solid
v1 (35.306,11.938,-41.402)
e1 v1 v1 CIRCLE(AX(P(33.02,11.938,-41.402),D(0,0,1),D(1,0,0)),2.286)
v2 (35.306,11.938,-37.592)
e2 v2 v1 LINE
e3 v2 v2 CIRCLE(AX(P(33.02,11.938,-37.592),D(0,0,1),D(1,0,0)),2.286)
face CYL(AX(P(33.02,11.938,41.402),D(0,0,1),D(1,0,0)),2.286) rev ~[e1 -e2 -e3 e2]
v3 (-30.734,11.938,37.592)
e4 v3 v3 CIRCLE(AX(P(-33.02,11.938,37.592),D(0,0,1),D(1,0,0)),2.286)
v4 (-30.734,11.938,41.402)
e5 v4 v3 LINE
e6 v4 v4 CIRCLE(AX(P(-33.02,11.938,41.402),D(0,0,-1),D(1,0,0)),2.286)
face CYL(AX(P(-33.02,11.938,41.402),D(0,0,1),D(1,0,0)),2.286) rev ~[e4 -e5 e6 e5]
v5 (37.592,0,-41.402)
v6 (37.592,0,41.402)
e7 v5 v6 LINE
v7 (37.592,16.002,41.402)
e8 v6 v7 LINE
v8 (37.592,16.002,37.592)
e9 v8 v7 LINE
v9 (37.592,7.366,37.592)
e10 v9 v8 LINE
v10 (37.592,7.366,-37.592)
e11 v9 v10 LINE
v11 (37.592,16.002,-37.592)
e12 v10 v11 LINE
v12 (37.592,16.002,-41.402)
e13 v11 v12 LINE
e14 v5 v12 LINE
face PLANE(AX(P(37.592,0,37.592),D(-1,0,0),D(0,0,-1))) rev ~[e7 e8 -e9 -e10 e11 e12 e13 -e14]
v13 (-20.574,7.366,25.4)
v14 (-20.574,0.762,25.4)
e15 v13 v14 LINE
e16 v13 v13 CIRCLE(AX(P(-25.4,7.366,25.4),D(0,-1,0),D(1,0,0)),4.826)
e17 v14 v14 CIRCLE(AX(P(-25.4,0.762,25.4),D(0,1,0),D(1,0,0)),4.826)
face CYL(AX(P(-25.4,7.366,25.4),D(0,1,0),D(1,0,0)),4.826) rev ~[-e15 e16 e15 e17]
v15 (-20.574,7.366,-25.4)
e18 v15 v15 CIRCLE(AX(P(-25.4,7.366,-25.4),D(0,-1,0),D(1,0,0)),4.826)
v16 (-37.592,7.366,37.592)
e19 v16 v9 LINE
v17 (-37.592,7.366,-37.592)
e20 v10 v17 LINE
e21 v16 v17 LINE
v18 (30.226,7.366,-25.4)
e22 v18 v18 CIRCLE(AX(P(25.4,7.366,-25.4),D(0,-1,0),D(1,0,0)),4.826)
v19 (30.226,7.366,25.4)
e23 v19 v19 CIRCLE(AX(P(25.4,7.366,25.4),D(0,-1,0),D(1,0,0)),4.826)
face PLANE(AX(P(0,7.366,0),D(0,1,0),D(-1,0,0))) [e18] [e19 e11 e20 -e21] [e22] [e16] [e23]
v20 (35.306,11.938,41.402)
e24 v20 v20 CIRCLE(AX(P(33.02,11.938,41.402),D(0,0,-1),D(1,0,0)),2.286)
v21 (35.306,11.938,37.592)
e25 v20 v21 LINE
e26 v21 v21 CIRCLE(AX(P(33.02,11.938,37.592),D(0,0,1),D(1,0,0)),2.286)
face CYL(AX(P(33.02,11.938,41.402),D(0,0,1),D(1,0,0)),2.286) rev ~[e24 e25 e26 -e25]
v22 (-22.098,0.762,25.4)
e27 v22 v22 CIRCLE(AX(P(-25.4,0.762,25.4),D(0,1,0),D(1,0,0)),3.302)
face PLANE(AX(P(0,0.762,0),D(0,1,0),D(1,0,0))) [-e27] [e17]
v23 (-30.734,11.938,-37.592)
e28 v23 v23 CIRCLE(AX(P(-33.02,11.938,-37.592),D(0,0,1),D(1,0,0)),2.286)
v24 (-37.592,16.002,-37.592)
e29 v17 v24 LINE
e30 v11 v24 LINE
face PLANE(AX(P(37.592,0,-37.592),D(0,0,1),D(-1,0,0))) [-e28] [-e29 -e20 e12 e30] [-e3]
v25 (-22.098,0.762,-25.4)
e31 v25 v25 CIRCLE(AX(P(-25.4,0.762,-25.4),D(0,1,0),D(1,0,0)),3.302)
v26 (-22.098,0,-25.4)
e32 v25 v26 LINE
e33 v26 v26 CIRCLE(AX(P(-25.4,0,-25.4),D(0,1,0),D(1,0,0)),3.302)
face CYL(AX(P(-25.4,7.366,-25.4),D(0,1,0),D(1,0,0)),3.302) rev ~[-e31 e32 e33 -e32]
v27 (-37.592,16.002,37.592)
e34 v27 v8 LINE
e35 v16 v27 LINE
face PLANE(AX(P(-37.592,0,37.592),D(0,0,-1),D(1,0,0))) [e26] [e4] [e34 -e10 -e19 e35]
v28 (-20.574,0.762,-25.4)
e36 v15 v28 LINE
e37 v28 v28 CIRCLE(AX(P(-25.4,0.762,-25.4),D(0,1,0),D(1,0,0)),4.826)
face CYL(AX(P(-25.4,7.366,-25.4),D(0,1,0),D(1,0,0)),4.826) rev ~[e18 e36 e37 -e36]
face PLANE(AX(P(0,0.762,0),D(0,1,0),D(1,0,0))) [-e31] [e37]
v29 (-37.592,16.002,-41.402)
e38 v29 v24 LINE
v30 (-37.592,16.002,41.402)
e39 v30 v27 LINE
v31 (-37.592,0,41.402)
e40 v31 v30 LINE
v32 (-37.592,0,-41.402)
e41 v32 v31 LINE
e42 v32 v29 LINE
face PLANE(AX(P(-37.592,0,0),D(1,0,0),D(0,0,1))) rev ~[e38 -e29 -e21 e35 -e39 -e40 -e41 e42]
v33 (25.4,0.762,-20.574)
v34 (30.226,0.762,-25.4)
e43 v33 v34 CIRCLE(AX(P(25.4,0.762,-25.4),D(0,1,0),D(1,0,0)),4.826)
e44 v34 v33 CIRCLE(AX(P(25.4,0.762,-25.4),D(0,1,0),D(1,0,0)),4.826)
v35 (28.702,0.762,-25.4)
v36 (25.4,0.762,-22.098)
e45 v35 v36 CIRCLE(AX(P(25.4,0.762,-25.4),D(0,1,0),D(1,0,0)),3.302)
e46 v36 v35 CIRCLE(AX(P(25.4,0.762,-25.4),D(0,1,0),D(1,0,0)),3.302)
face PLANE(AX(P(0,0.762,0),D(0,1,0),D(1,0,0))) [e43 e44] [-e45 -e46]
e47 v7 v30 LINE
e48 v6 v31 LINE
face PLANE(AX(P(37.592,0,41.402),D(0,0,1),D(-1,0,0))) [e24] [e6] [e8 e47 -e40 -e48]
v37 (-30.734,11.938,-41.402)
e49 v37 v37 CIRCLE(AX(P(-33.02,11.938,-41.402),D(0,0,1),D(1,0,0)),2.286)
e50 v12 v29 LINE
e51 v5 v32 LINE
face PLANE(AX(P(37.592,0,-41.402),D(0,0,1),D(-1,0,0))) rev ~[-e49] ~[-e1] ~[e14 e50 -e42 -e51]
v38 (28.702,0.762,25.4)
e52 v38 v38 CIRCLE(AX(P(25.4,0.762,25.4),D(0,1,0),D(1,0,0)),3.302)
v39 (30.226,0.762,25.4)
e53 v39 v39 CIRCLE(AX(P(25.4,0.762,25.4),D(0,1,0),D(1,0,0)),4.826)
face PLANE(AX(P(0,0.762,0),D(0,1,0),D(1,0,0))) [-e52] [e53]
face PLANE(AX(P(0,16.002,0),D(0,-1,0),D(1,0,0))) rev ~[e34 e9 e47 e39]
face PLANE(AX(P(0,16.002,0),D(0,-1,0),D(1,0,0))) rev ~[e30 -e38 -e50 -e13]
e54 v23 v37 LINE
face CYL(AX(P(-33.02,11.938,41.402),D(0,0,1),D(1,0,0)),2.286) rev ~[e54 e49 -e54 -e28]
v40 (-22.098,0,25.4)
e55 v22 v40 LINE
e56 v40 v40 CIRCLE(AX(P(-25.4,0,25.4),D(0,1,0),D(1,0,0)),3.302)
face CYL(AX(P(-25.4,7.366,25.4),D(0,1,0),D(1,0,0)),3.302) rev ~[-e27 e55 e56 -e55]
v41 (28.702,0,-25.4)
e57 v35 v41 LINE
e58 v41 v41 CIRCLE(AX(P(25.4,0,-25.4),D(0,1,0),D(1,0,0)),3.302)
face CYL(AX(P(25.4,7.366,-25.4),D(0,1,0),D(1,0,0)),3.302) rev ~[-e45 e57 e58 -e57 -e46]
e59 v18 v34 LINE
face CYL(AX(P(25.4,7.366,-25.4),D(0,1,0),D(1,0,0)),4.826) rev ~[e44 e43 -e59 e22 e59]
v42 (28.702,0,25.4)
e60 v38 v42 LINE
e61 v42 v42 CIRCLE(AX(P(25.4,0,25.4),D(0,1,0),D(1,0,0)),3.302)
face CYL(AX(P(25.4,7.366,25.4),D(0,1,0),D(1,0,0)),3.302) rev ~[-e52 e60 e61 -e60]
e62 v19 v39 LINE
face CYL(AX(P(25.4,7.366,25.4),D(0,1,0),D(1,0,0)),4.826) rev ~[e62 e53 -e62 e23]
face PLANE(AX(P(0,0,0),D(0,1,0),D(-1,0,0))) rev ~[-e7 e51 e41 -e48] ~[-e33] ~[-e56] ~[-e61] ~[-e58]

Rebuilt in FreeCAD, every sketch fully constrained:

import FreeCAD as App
import Part
import Sketcher
Q = App.Units.Quantity


def add_polygon(sketch, points):
    """Adds a closed chain of lines whose ends are joined by coincident constraints."""
    first, n = sketch.GeometryCount, len(points)
    for a, b in zip(points, points[1:] + points[:1]):
        sketch.addGeometry(Part.LineSegment(App.Vector(*a, 0), App.Vector(*b, 0)), False)
    for i in range(n):
        sketch.addConstraint(Sketcher.Constraint("Coincident", first + i, 2, first + (i + 1) % n, 1))

doc = App.newDocument("Part")
body = doc.addObject("PartDesign::Body", "Body")

# Sketch on XZ plane
sketch1 = body.newObject("Sketcher::SketchObject", "Sketch")
sketch1.AttachmentSupport = (doc.getObject("XZ_Plane"), [""])
sketch1.MapMode = "FlatFace"
add_polygon(sketch1, [(-38, 38), (38, 38), (38, -38), (-38, -38)])  # lines 0-3
sketch1.addConstraint([
    Sketcher.Constraint("Horizontal", 0),
    Sketcher.Constraint("Vertical", 1),
    Sketcher.Constraint("Horizontal", 2),
    Sketcher.Constraint("Vertical", 3),
    Sketcher.Constraint("Symmetric", 0, 2, 2, 2, -1, 1),
    Sketcher.Constraint("Equal", 2, 1),
    Sketcher.Constraint("DistanceX", 0, 1, 0, 2, Q("2.96 in")),
])
pad1 = body.newObject("PartDesign::Pad", "Pad")
pad1.Profile = sketch1
pad1.Length = Q("0.29 in")
pad1.Reversed = True

# Sketch on XZ plane
sketch2 = body.newObject("Sketcher::SketchObject", "Sketch001")
sketch2.AttachmentSupport = (doc.getObject("XZ_Plane"), [""])
sketch2.MapMode = "FlatFace"
add_polygon(sketch2, [(-37.6, 41.4), (-37.6, 37.6), (37.6, 37.6), (37.6, 41.4)])  # lines 0-3
add_polygon(sketch2, [(37.6, -41.4), (37.6, -37.6), (-37.6, -37.6), (-37.6, -41.4)])  # lines 4-7
sketch2.addConstraint([
    Sketcher.Constraint("Vertical", 0),
    Sketcher.Constraint("Horizontal", 1),
    Sketcher.Constraint("Vertical", 2),
    Sketcher.Constraint("Horizontal", 3),
    Sketcher.Constraint("Vertical", 4),
    Sketcher.Constraint("Horizontal", 5),
    Sketcher.Constraint("Vertical", 6),
    Sketcher.Constraint("Horizontal", 7),
    Sketcher.Constraint("Symmetric", 0, 2, 4, 2, -1, 1),
    Sketcher.Constraint("Symmetric", 2, 2, 6, 2, -1, 1),
    Sketcher.Constraint("Vertical", 2, 2, 4, 2),
    Sketcher.Constraint("DistanceY", 0, 2, 0, 1, Q("0.15 in")),
    Sketcher.Constraint("DistanceX", 1, 1, 1, 2, Q("2.96 in")),
    Sketcher.Constraint("DistanceY", -1, 1, 0, 2, Q("1.48 in")),
])
pad2 = body.newObject("PartDesign::Pad", "Pad001")
pad2.Profile = sketch2
pad2.Length = Q("0.63 in")
pad2.Reversed = True

# Sketch on XZ plane
sketch3 = body.newObject("Sketcher::SketchObject", "Sketch002")
sketch3.AttachmentSupport = (doc.getObject("XZ_Plane"), [""])
sketch3.MapMode = "FlatFace"
sketch3.AttachmentOffset = App.Placement(App.Vector(0, 0, -0.29 * 25.4), App.Rotation())
sketch3.addGeometry([
    Part.Circle(App.Vector(25.4, -25.4, 0), App.Vector(0, 0, 1), 3.3),
    Part.Circle(App.Vector(-25.4, -25.4, 0), App.Vector(0, 0, 1), 3.3),
    Part.Circle(App.Vector(-25.4, 25.4, 0), App.Vector(0, 0, 1), 3.3),
    Part.Circle(App.Vector(25.4, 25.4, 0), App.Vector(0, 0, 1), 3.3),
], False)
sketch3.addConstraint([
    Sketcher.Constraint("Equal", 0, 1),
    Sketcher.Constraint("Equal", 1, 2),
    Sketcher.Constraint("Equal", 2, 3),
    Sketcher.Constraint("Symmetric", 0, 3, 2, 3, -1, 1),
    Sketcher.Constraint("Symmetric", 1, 3, 3, 3, -1, 1),
    Sketcher.Constraint("Symmetric", 0, 3, 1, 3, -2),
    Sketcher.Constraint("Diameter", 0, Q("0.26 in")),
    Sketcher.Constraint("DistanceX", -1, 1, 0, 3, Q("1 in")),
    Sketcher.Constraint("DistanceY", 0, 3, -1, 1, Q("1 in")),
])
pocket1 = body.newObject("PartDesign::Pocket", "Pocket")
pocket1.Profile = sketch3
pocket1.Length = Q("1 in")
pocket1.Reversed = True

# Sketch on XZ plane
sketch4 = body.newObject("Sketcher::SketchObject", "Sketch003")
sketch4.AttachmentSupport = (doc.getObject("XZ_Plane"), [""])
sketch4.MapMode = "FlatFace"
sketch4.AttachmentOffset = App.Placement(App.Vector(0, 0, -0.29 * 25.4), App.Rotation())
sketch4.addGeometry([
    Part.Circle(App.Vector(-25.4, -25.4, 0), App.Vector(0, 0, 1), 4.8),
    Part.Circle(App.Vector(25.4, -25.4, 0), App.Vector(0, 0, 1), 4.8),
    Part.Circle(App.Vector(25.4, 25.4, 0), App.Vector(0, 0, 1), 4.8),
    Part.Circle(App.Vector(-25.4, 25.4, 0), App.Vector(0, 0, 1), 4.8),
], False)
sketch4.addConstraint([
    Sketcher.Constraint("Equal", 0, 1),
    Sketcher.Constraint("Equal", 1, 2),
    Sketcher.Constraint("Equal", 2, 3),
    Sketcher.Constraint("Symmetric", 0, 3, 2, 3, -1, 1),
    Sketcher.Constraint("Symmetric", 1, 3, 3, 3, -1, 1),
    Sketcher.Constraint("Symmetric", 0, 3, 1, 3, -2),
    Sketcher.Constraint("Diameter", 0, Q("0.38 in")),
    Sketcher.Constraint("DistanceX", 0, 3, -1, 1, Q("1 in")),
    Sketcher.Constraint("DistanceY", 0, 3, -1, 1, Q("1 in")),
])
pocket2 = body.newObject("PartDesign::Pocket", "Pocket001")
pocket2.Profile = sketch4
pocket2.Length = Q("0.26 in")
pocket2.Reversed = True

# Sketch on XY plane
sketch5 = body.newObject("Sketcher::SketchObject", "Sketch004")
sketch5.AttachmentSupport = (doc.getObject("XY_Plane"), [""])
sketch5.MapMode = "FlatFace"
sketch5.AttachmentOffset = App.Placement(App.Vector(0, 0, 1.63 * 25.4), App.Rotation())
sketch5.addGeometry([
    Part.Circle(App.Vector(33, 11.9, 0), App.Vector(0, 0, 1), 2.3),
    Part.Circle(App.Vector(-33, 11.9, 0), App.Vector(0, 0, 1), 2.3),
], False)
sketch5.addConstraint([
    Sketcher.Constraint("Equal", 0, 1),
    Sketcher.Constraint("Symmetric", 0, 3, 1, 3, -2),
    Sketcher.Constraint("Diameter", 0, Q("0.18 in")),
    Sketcher.Constraint("DistanceX", -1, 1, 0, 3, Q("1.3 in")),
    Sketcher.Constraint("DistanceY", -1, 1, 0, 3, Q("0.47 in")),
])
pocket3 = body.newObject("PartDesign::Pocket", "Pocket002")
pocket3.Profile = sketch5
pocket3.Length = Q("5 in")

doc.recompute()
